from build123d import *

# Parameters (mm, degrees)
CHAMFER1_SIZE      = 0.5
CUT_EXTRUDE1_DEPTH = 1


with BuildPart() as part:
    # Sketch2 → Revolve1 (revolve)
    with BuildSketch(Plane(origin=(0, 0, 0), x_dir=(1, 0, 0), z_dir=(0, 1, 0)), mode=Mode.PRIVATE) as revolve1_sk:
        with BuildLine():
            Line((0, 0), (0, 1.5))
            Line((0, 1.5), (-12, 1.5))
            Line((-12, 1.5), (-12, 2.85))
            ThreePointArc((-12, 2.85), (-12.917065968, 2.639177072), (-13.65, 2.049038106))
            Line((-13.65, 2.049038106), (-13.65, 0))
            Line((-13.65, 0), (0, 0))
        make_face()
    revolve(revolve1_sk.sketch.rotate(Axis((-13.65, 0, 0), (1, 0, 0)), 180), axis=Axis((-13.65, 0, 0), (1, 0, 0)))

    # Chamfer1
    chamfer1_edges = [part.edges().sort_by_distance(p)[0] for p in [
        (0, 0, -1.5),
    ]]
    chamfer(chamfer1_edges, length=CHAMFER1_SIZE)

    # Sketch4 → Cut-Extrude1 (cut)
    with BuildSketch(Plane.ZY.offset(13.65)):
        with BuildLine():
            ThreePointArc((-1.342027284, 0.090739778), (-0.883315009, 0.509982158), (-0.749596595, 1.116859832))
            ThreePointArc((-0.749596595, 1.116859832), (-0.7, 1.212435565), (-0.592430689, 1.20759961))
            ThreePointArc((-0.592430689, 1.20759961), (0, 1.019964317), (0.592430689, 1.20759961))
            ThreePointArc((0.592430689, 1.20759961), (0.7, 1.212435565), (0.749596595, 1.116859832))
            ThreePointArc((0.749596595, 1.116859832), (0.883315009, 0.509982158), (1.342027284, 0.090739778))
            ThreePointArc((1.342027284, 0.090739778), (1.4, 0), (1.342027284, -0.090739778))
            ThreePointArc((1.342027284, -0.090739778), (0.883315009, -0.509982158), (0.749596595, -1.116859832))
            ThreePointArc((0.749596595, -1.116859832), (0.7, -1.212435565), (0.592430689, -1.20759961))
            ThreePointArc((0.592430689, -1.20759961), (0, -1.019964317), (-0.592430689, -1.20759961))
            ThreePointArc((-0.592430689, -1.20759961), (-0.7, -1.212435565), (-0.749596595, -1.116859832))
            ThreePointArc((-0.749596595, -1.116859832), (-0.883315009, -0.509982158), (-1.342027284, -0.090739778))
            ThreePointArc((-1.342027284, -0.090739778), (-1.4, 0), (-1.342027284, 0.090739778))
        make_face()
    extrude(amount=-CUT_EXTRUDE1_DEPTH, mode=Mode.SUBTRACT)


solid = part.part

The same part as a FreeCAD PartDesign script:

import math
import FreeCAD as App
import Part
import Sketcher


def edges_at(feature, points):
    """Names of the edges that pass closest to the given points."""
    edges = feature.Shape.Edges
    near = lambda p: min(range(len(edges)), key=lambda i: edges[i].distToShape(Part.Vertex(*p))[0])
    return sorted({f"Edge{near(p) + 1}" for p in points})

doc = App.newDocument("Part")
body = doc.addObject("PartDesign::Body", "Body")

# Sketch on XZ plane
sketch1 = doc.addObject("Sketcher::SketchObject", "Sketch")
body.addObject(sketch1)
sketch1.AttachmentSupport = (doc.XZ_Plane, [""])
sketch1.MapMode = "FlatFace"
sketch1.addGeometry([
    Part.LineSegment(App.Vector(0, 0, 0), App.Vector(0, -1.5, 0)),  # 0
    Part.LineSegment(App.Vector(0, -1.5, 0), App.Vector(-12, -1.5, 0)),  # 1
    Part.LineSegment(App.Vector(-12, -1.5, 0), App.Vector(-12, -2.9, 0)),  # 2
    Part.ArcOfCircle(Part.Circle(App.Vector(-12, -0.7, 0), App.Vector(0, 0, 1), 2.1), math.radians(-142), math.radians(-90)),  # 3
    Part.LineSegment(App.Vector(-13.7, -2, 0), App.Vector(-13.7, 0, 0)),  # 4
    Part.LineSegment(App.Vector(-13.7, 0, 0), App.Vector(0, 0, 0)),  # 5
], False)
sketch1.addConstraint([
    Sketcher.Constraint("Coincident", 0, 2, 1, 1),
    Sketcher.Constraint("Coincident", 1, 2, 2, 1),
    Sketcher.Constraint("Coincident", 2, 2, 3, 2),
    Sketcher.Constraint("Coincident", 3, 1, 4, 1),
    Sketcher.Constraint("Coincident", 4, 2, 5, 1),
    Sketcher.Constraint("Coincident", 5, 2, 0, 1),
    Sketcher.Constraint("Vertical", 0),
    Sketcher.Constraint("Horizontal", 1),
    Sketcher.Constraint("Vertical", 2),
    Sketcher.Constraint("Vertical", 4),
    Sketcher.Constraint("Horizontal", 5),
    Sketcher.Constraint("Coincident", 5, 2, -1, 1),
    Sketcher.Constraint("Vertical", 3, 3, 1, 2),
    Sketcher.Constraint("Radius", 3, 2.1),
    Sketcher.Constraint("DistanceX", 1, 2, 1, 1, 12.0),
    Sketcher.Constraint("DistanceY", 0, 2, 0, 1, 1.5),
    Sketcher.Constraint("DistanceX", 5, 1, 5, 2, 13.65),
    Sketcher.Constraint("DistanceY", 2, 2, 2, 1, 1.35),
])
revolution = doc.addObject("PartDesign::Revolution", "Revolution")
body.addObject(revolution)
revolution.Profile = sketch1
revolution.ReferenceAxis = (sketch1, ["H_Axis"])
revolution.Angle = 360
doc.recompute()

chamfer = doc.addObject("PartDesign::Chamfer", "Chamfer")
body.addObject(chamfer)
chamfer.Base = (revolution, edges_at(revolution, [(0, 0, -1.5)]))
chamfer.Size = 0.5

# Sketch on YZ plane
sketch2 = doc.addObject("Sketcher::SketchObject", "Sketch001")
body.addObject(sketch2)
sketch2.AttachmentSupport = (doc.YZ_Plane, [""])
sketch2.MapMode = "FlatFace"
sketch2.AttachmentOffset = App.Placement(App.Vector(0, 0, -13.65), App.Rotation())
sketch2.addGeometry([
    Part.ArcOfCircle(Part.Circle(App.Vector(1.02, -1.77, 0), App.Vector(0, 0, 1), 1.03), math.radians(85), math.radians(155)),  # 0
    Part.ArcOfCircle(Part.Circle(App.Vector(0, -1.3, 0), App.Vector(0, 0, 1), 0.1), math.radians(-155), math.radians(-25)),  # 1
    Part.ArcOfCircle(Part.Circle(App.Vector(-1.02, -1.77, 0), App.Vector(0, 0, 1), 1.03), math.radians(25), math.radians(95)),  # 2
    Part.ArcOfCircle(Part.Circle(App.Vector(-1.13, -0.65, 0), App.Vector(0, 0, 1), 0.1), math.radians(145), math.radians(275)),  # 3
    Part.ArcOfCircle(Part.Circle(App.Vector(-2.05, 0, 0), App.Vector(0, 0, 1), 1.03), math.radians(-35), math.radians(35)),  # 4
    Part.ArcOfCircle(Part.Circle(App.Vector(-1.13, 0.65, 0), App.Vector(0, 0, 1), 0.1), math.radians(85), math.radians(215)),  # 5
    Part.ArcOfCircle(Part.Circle(App.Vector(-1.02, 1.77, 0), App.Vector(0, 0, 1), 1.03), math.radians(-95), math.radians(-25)),  # 6
    Part.ArcOfCircle(Part.Circle(App.Vector(0, 1.3, 0), App.Vector(0, 0, 1), 0.1), math.radians(25), math.radians(155)),  # 7
    Part.ArcOfCircle(Part.Circle(App.Vector(1.02, 1.77, 0), App.Vector(0, 0, 1), 1.03), math.radians(-155), math.radians(-85)),  # 8
    Part.ArcOfCircle(Part.Circle(App.Vector(1.13, 0.65, 0), App.Vector(0, 0, 1), 0.1), math.radians(-35), math.radians(95)),  # 9
    Part.ArcOfCircle(Part.Circle(App.Vector(2.05, 0, 0), App.Vector(0, 0, 1), 1.03), math.radians(145), math.radians(215)),  # 10
    Part.ArcOfCircle(Part.Circle(App.Vector(1.13, -0.65, 0), App.Vector(0, 0, 1), 0.1), math.radians(-95), math.radians(35)),  # 11
], False)
sketch2.addConstraint([
    Sketcher.Constraint("Tangent", 0, 2, 1, 2),
    Sketcher.Constraint("Tangent", 1, 1, 2, 1),
    Sketcher.Constraint("Tangent", 2, 2, 3, 2),
    Sketcher.Constraint("Tangent", 3, 1, 4, 1),
    Sketcher.Constraint("Tangent", 4, 2, 5, 2),
    Sketcher.Constraint("Tangent", 5, 1, 6, 1),
    Sketcher.Constraint("Tangent", 6, 2, 7, 2),
    Sketcher.Constraint("Tangent", 7, 1, 8, 1),
    Sketcher.Constraint("Tangent", 8, 2, 9, 2),
    Sketcher.Constraint("Tangent", 9, 1, 10, 1),
    Sketcher.Constraint("Tangent", 10, 2, 11, 2),
    Sketcher.Constraint("Tangent", 11, 1, 0, 1),
    Sketcher.Constraint("Equal", 0, 2),
    Sketcher.Constraint("Equal", 1, 3),
    Sketcher.Constraint("Equal", 2, 4),
    Sketcher.Constraint("Equal", 3, 5),
    Sketcher.Constraint("Equal", 4, 6),
    Sketcher.Constraint("Equal", 5, 7),
    Sketcher.Constraint("Equal", 6, 8),
    Sketcher.Constraint("Equal", 7, 9),
    Sketcher.Constraint("Equal", 8, 10),
    Sketcher.Constraint("Equal", 9, 11),
    Sketcher.Constraint("Symmetric", 0, 3, 6, 3, -1, 1),
    Sketcher.Constraint("Symmetric", 2, 3, 8, 3, -1, 1),
    Sketcher.Constraint("Symmetric", 4, 3, 10, 3, -1, 1),
    Sketcher.Constraint("Symmetric", 0, 3, 2, 3, -2),
    Sketcher.Constraint("PointOnObject", 4, 3, -1),
    Sketcher.Constraint("Radius", 1, 0.1),
    Sketcher.Constraint("DistanceY", 1, 3, -1, 1, 1.3),
    Sketcher.Constraint("DistanceY", 3, 3, 5, 3, 1.3),
    Sketcher.Constraint("Radius", 0, 1.029074),
    Sketcher.Constraint("DistanceX", 3, 1, -1, 1, 1.2076),
])
pocket1 = doc.addObject("PartDesign::Pocket", "Pocket")
body.addObject(pocket1)
pocket1.Profile = sketch2
pocket1.Length = 1
pocket1.Reversed = True

doc.recompute()
